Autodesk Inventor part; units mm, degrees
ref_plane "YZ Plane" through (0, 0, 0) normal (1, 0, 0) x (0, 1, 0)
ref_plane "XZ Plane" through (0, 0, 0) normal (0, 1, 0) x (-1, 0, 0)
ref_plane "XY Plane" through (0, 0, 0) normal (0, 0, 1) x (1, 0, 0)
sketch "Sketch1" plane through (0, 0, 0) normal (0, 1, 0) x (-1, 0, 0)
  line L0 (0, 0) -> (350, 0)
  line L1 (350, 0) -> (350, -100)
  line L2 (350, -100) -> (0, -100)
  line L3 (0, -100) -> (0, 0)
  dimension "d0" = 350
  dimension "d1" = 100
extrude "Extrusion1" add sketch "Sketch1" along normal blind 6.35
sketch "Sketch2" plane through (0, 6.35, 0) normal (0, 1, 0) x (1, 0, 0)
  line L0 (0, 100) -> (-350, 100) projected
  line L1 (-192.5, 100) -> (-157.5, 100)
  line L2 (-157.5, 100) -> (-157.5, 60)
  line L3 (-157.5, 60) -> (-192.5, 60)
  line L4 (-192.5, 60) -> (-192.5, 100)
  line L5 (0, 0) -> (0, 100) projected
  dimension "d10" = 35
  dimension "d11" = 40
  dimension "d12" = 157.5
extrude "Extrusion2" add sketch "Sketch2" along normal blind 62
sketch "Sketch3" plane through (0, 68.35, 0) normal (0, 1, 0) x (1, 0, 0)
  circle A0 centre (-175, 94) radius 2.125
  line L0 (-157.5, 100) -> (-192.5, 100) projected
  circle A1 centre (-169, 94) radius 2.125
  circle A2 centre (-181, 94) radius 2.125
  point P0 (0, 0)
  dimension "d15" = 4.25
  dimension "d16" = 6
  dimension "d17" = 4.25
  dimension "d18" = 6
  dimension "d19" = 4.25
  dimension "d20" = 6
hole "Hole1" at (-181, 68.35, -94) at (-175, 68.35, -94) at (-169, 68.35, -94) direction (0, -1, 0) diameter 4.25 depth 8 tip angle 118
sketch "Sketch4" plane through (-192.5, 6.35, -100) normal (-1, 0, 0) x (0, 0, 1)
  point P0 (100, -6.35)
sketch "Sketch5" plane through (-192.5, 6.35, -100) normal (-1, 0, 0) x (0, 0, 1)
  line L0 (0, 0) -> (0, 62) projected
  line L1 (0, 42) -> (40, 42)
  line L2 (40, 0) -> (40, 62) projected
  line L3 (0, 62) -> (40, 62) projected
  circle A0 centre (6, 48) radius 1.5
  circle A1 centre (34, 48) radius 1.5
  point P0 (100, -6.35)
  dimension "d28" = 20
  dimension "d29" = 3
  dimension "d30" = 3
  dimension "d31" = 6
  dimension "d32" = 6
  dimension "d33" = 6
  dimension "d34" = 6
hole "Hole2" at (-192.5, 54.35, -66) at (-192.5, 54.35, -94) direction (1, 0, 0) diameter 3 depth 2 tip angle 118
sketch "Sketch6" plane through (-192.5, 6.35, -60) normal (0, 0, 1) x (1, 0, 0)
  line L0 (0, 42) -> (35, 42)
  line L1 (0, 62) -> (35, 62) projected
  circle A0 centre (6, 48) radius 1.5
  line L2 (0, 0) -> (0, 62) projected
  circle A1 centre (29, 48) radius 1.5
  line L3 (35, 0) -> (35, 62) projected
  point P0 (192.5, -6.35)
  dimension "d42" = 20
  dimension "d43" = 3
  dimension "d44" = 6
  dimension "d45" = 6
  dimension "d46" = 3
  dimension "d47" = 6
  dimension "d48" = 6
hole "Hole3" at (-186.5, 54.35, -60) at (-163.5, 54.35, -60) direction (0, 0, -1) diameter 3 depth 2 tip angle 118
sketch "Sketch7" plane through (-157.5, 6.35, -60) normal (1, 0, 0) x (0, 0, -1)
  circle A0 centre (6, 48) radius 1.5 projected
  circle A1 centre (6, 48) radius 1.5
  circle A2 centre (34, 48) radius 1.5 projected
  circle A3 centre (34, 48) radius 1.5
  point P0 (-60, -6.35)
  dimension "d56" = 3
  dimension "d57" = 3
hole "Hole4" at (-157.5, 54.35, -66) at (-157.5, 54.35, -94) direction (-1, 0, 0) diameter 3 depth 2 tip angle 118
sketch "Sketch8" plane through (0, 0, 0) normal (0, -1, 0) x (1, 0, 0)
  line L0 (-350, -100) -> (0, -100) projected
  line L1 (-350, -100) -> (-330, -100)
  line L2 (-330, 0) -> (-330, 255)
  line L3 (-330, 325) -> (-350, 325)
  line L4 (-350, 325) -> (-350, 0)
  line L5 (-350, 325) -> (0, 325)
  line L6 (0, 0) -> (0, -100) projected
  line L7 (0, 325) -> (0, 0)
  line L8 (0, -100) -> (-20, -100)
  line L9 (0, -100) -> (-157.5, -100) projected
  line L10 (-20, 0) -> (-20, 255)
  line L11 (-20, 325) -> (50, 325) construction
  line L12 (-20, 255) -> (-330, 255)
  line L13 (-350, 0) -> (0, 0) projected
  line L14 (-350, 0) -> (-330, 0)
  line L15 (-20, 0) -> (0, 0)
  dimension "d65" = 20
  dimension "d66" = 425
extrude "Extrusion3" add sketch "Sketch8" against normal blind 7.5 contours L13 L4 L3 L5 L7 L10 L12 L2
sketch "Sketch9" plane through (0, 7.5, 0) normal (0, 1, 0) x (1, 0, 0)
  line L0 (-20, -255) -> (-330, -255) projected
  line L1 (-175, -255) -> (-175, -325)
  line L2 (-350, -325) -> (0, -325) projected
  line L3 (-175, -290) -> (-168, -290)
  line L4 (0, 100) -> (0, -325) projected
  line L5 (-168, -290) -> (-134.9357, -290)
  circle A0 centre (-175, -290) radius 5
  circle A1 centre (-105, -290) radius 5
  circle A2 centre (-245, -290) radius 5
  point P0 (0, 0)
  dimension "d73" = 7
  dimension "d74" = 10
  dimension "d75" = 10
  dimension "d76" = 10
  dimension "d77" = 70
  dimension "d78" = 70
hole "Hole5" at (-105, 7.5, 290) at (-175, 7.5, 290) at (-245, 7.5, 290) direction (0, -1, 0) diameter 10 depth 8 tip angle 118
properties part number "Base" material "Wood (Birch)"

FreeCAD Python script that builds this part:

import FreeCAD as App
import Part
import Sketcher

V = App.Vector


def add_polygon(sketch, points):
    """Adds a closed chain of lines whose ends are joined by coincident constraints."""
    first, n = sketch.GeometryCount, len(points)
    for a, b in zip(points, points[1:] + points[:1]):
        sketch.addGeometry(Part.LineSegment(App.Vector(*a, 0), App.Vector(*b, 0)), False)
    for i in range(n):
        sketch.addConstraint(Sketcher.Constraint("Coincident", first + i, 2, first + (i + 1) % n, 1))

doc = App.newDocument("Part")
body = doc.addObject("PartDesign::Body", "Body")

# Sketch on XZ plane
sketch1 = body.newObject("Sketcher::SketchObject", "Sketch")
sketch1.AttachmentSupport = (doc.getObject("XZ_Plane"), [""])
sketch1.MapMode = "FlatFace"
add_polygon(sketch1, [(-350, 0), (0, 0), (0, -100), (-350, -100)])  # lines 0-3
sketch1.addConstraint([
    Sketcher.Constraint("Horizontal", 0),
    Sketcher.Constraint("Vertical", 1),
    Sketcher.Constraint("Horizontal", 2),
    Sketcher.Constraint("Vertical", 3),
    Sketcher.Constraint("Coincident", 0, 2, -1, 1),
    Sketcher.Constraint("DistanceX", 0, 1, 0, 2, 350.0),
    Sketcher.Constraint("DistanceY", 1, 2, 1, 1, 100.0),
])
pad1 = body.newObject("PartDesign::Pad", "Pad")
pad1.Profile = sketch1
pad1.Length = 6.35
pad1.Reversed = True

# Sketch on XZ plane
sketch2 = body.newObject("Sketcher::SketchObject", "Sketch001")
sketch2.AttachmentSupport = (doc.getObject("XZ_Plane"), [""])
sketch2.MapMode = "FlatFace"
sketch2.AttachmentOffset = App.Placement(V(0, 0, -6.35), App.Rotation())
add_polygon(sketch2, [(-158, -60), (-158, -100), (-192, -100), (-192, -60)])  # lines 0-3
sketch2.addConstraint([
    Sketcher.Constraint("Vertical", 0),
    Sketcher.Constraint("Horizontal", 1),
    Sketcher.Constraint("Vertical", 2),
    Sketcher.Constraint("Horizontal", 3),
    Sketcher.Constraint("DistanceX", 1, 2, 1, 1, 35.0),
    Sketcher.Constraint("DistanceY", 0, 2, 0, 1, 40.0),
    Sketcher.Constraint("DistanceX", 0, 2, -1, 1, 157.5),
    Sketcher.Constraint("DistanceY", 0, 2, -1, 1, 100.0),
])
pad2 = body.newObject("PartDesign::Pad", "Pad001")
pad2.Profile = sketch2
pad2.Length = 62
pad2.Reversed = True

# Sketch on XZ plane
sketch3 = body.newObject("Sketcher::SketchObject", "Sketch002")
sketch3.AttachmentSupport = (doc.getObject("XZ_Plane"), [""])
sketch3.MapMode = "FlatFace"
sketch3.AttachmentOffset = App.Placement(V(0, 0, -68.35), App.Rotation())
sketch3.addGeometry([
    Part.Circle(V(-181, -94, 0), V(0, 0, 1), 2.1),
    Part.Circle(V(-175, -94, 0), V(0, 0, 1), 2.1),
    Part.Circle(V(-169, -94, 0), V(0, 0, 1), 2.1),
], False)
sketch3.addConstraint([
    Sketcher.Constraint("Equal", 0, 1),
    Sketcher.Constraint("Equal", 1, 2),
    Sketcher.Constraint("Horizontal", 0, 3, 1, 3),
    Sketcher.Constraint("Horizontal", 1, 3, 2, 3),
    Sketcher.Constraint("Diameter", 0, 4.25),
    Sketcher.Constraint("DistanceX", 0, 3, -1, 1, 181.0),
    Sketcher.Constraint("DistanceY", 0, 3, -1, 1, 94.0),
    Sketcher.Constraint("DistanceX", 1, 3, -1, 1, 175.0),
    Sketcher.Constraint("DistanceX", 2, 3, -1, 1, 169.0),
])
doc.recompute()
hole = body.newObject("PartDesign::Hole", "Hole")
hole.Profile = sketch3
hole.ThreadType = "None"
hole.Diameter = 4.25
hole.DepthType = "Dimension"
hole.Depth = 8
hole.DrillPoint = "Angled"
hole.DrillPointAngle = 118
hole.Reversed = True

# Sketch on YZ plane
sketch4 = body.newObject("Sketcher::SketchObject", "Sketch003")
sketch4.AttachmentSupport = (doc.getObject("YZ_Plane"), [""])
sketch4.MapMode = "FlatFace"
sketch4.AttachmentOffset = App.Placement(V(0, 0, -192.5), App.Rotation())
sketch4.addGeometry([
    Part.Circle(V(54.4, -66, 0), V(0, 0, 1), 1.5),
    Part.Circle(V(54.4, -94, 0), V(0, 0, 1), 1.5),
], False)
sketch4.addConstraint([
    Sketcher.Constraint("Equal", 0, 1),
    Sketcher.Constraint("Vertical", 0, 3, 1, 3),
    Sketcher.Constraint("Diameter", 0, 3.0),
    Sketcher.Constraint("DistanceY", 0, 3, -1, 1, 66.0),
    Sketcher.Constraint("DistanceY", 1, 3, -1, 1, 94.0),
    Sketcher.Constraint("DistanceX", -1, 1, 0, 3, 54.35),
])
doc.recompute()
hole2 = body.newObject("PartDesign::Hole", "Hole001")
hole2.Profile = sketch4
hole2.ThreadType = "None"
hole2.Diameter = 3
hole2.DepthType = "Dimension"
hole2.Depth = 2
hole2.DrillPoint = "Angled"
hole2.DrillPointAngle = 118
hole2.Reversed = True

# Sketch on XY plane
sketch5 = body.newObject("Sketcher::SketchObject", "Sketch004")
sketch5.AttachmentSupport = (doc.getObject("XY_Plane"), [""])
sketch5.MapMode = "FlatFace"
sketch5.AttachmentOffset = App.Placement(V(0, 0, -60), App.Rotation())
sketch5.addGeometry([
    Part.Circle(V(-186.5, 54.4, 0), V(0, 0, 1), 1.5),
    Part.Circle(V(-163.5, 54.4, 0), V(0, 0, 1), 1.5),
], False)
sketch5.addConstraint([
    Sketcher.Constraint("Equal", 0, 1),
    Sketcher.Constraint("Horizontal", 0, 3, 1, 3),
    Sketcher.Constraint("Diameter", 0, 3.0),
    Sketcher.Constraint("DistanceX", 0, 3, 1, 3, 23.0),
    Sketcher.Constraint("DistanceX", 0, 3, -1, 1, 186.5),
    Sketcher.Constraint("DistanceY", -1, 1, 0, 3, 54.35),
])
doc.recompute()
hole3 = body.newObject("PartDesign::Hole", "Hole002")
hole3.Profile = sketch5
hole3.ThreadType = "None"
hole3.Diameter = 3
hole3.DepthType = "Dimension"
hole3.Depth = 2
hole3.DrillPoint = "Angled"
hole3.DrillPointAngle = 118

# Sketch on YZ plane
sketch6 = body.newObject("Sketcher::SketchObject", "Sketch005")
sketch6.AttachmentSupport = (doc.getObject("YZ_Plane"), [""])
sketch6.MapMode = "FlatFace"
sketch6.AttachmentOffset = App.Placement(V(0, 0, -157.5), App.Rotation())
sketch6.addGeometry([
    Part.Circle(V(54.4, -66, 0), V(0, 0, 1), 1.5),
    Part.Circle(V(54.4, -94, 0), V(0, 0, 1), 1.5),
], False)
sketch6.addConstraint([
    Sketcher.Constraint("Equal", 0, 1),
    Sketcher.Constraint("Vertical", 0, 3, 1, 3),
    Sketcher.Constraint("Diameter", 0, 3.0),
    Sketcher.Constraint("DistanceY", 0, 3, -1, 1, 66.0),
    Sketcher.Constraint("DistanceY", 1, 3, -1, 1, 94.0),
    Sketcher.Constraint("DistanceX", -1, 1, 0, 3, 54.35),
])
doc.recompute()
hole4 = body.newObject("PartDesign::Hole", "Hole003")
hole4.Profile = sketch6
hole4.ThreadType = "None"
hole4.Diameter = 3
hole4.DepthType = "Dimension"
hole4.Depth = 2
hole4.DrillPoint = "Angled"
hole4.DrillPointAngle = 118

# Sketch on XZ plane
sketch7 = body.newObject("Sketcher::SketchObject", "Sketch006")
sketch7.AttachmentSupport = (doc.getObject("XZ_Plane"), [""])
sketch7.MapMode = "FlatFace"
add_polygon(sketch7, [(-350, 0), (-330, 0), (-330, 255), (-20, 255), (-20, 0), (0, 0), (0, 325), (-350, 325)])  # lines 0-7
sketch7.addConstraint([
    Sketcher.Constraint("Horizontal", 0),
    Sketcher.Constraint("Vertical", 1),
    Sketcher.Constraint("Horizontal", 2),
    Sketcher.Constraint("Vertical", 3),
    Sketcher.Constraint("Horizontal", 4),
    Sketcher.Constraint("Vertical", 5),
    Sketcher.Constraint("Horizontal", 6),
    Sketcher.Constraint("Vertical", 7),
    Sketcher.Constraint("Coincident", 4, 2, -1, 1),
    Sketcher.Constraint("PointOnObject", 0, 2, -1),
    Sketcher.Constraint("Equal", 0, 4),
    Sketcher.Constraint("DistanceX", 0, 1, 0, 2, 20.0),
    Sketcher.Constraint("DistanceX", 2, 1, 2, 2, 310.0),
    Sketcher.Constraint("DistanceY", 1, 1, 1, 2, 255.0),
    Sketcher.Constraint("DistanceY", 5, 1, 5, 2, 325.0),
])
pad3 = body.newObject("PartDesign::Pad", "Pad002")
pad3.Profile = sketch7
pad3.Length = 7.5
pad3.Reversed = True

# Sketch on XZ plane
sketch8 = body.newObject("Sketcher::SketchObject", "Sketch007")
sketch8.AttachmentSupport = (doc.getObject("XZ_Plane"), [""])
sketch8.MapMode = "FlatFace"
sketch8.AttachmentOffset = App.Placement(V(0, 0, -7.5), App.Rotation())
sketch8.addGeometry([
    Part.Circle(V(-105, 290, 0), V(0, 0, 1), 5),
    Part.Circle(V(-175, 290, 0), V(0, 0, 1), 5),
    Part.Circle(V(-245, 290, 0), V(0, 0, 1), 5),
], False)
sketch8.addConstraint([
    Sketcher.Constraint("Equal", 0, 1),
    Sketcher.Constraint("Equal", 1, 2),
    Sketcher.Constraint("Horizontal", 0, 3, 1, 3),
    Sketcher.Constraint("Horizontal", 1, 3, 2, 3),
    Sketcher.Constraint("Diameter", 0, 10.0),
    Sketcher.Constraint("DistanceX", 0, 3, -1, 1, 105.0),
    Sketcher.Constraint("DistanceY", -1, 1, 0, 3, 290.0),
    Sketcher.Constraint("DistanceX", 1, 3, -1, 1, 175.0),
    Sketcher.Constraint("DistanceX", 2, 3, -1, 1, 245.0),
])
doc.recompute()
hole5 = body.newObject("PartDesign::Hole", "Hole004")
hole5.Profile = sketch8
hole5.ThreadType = "None"
hole5.Diameter = 10
hole5.DepthType = "Dimension"
hole5.Depth = 8
hole5.DrillPoint = "Angled"
hole5.DrillPointAngle = 118
hole5.Reversed = True

doc.recompute()
